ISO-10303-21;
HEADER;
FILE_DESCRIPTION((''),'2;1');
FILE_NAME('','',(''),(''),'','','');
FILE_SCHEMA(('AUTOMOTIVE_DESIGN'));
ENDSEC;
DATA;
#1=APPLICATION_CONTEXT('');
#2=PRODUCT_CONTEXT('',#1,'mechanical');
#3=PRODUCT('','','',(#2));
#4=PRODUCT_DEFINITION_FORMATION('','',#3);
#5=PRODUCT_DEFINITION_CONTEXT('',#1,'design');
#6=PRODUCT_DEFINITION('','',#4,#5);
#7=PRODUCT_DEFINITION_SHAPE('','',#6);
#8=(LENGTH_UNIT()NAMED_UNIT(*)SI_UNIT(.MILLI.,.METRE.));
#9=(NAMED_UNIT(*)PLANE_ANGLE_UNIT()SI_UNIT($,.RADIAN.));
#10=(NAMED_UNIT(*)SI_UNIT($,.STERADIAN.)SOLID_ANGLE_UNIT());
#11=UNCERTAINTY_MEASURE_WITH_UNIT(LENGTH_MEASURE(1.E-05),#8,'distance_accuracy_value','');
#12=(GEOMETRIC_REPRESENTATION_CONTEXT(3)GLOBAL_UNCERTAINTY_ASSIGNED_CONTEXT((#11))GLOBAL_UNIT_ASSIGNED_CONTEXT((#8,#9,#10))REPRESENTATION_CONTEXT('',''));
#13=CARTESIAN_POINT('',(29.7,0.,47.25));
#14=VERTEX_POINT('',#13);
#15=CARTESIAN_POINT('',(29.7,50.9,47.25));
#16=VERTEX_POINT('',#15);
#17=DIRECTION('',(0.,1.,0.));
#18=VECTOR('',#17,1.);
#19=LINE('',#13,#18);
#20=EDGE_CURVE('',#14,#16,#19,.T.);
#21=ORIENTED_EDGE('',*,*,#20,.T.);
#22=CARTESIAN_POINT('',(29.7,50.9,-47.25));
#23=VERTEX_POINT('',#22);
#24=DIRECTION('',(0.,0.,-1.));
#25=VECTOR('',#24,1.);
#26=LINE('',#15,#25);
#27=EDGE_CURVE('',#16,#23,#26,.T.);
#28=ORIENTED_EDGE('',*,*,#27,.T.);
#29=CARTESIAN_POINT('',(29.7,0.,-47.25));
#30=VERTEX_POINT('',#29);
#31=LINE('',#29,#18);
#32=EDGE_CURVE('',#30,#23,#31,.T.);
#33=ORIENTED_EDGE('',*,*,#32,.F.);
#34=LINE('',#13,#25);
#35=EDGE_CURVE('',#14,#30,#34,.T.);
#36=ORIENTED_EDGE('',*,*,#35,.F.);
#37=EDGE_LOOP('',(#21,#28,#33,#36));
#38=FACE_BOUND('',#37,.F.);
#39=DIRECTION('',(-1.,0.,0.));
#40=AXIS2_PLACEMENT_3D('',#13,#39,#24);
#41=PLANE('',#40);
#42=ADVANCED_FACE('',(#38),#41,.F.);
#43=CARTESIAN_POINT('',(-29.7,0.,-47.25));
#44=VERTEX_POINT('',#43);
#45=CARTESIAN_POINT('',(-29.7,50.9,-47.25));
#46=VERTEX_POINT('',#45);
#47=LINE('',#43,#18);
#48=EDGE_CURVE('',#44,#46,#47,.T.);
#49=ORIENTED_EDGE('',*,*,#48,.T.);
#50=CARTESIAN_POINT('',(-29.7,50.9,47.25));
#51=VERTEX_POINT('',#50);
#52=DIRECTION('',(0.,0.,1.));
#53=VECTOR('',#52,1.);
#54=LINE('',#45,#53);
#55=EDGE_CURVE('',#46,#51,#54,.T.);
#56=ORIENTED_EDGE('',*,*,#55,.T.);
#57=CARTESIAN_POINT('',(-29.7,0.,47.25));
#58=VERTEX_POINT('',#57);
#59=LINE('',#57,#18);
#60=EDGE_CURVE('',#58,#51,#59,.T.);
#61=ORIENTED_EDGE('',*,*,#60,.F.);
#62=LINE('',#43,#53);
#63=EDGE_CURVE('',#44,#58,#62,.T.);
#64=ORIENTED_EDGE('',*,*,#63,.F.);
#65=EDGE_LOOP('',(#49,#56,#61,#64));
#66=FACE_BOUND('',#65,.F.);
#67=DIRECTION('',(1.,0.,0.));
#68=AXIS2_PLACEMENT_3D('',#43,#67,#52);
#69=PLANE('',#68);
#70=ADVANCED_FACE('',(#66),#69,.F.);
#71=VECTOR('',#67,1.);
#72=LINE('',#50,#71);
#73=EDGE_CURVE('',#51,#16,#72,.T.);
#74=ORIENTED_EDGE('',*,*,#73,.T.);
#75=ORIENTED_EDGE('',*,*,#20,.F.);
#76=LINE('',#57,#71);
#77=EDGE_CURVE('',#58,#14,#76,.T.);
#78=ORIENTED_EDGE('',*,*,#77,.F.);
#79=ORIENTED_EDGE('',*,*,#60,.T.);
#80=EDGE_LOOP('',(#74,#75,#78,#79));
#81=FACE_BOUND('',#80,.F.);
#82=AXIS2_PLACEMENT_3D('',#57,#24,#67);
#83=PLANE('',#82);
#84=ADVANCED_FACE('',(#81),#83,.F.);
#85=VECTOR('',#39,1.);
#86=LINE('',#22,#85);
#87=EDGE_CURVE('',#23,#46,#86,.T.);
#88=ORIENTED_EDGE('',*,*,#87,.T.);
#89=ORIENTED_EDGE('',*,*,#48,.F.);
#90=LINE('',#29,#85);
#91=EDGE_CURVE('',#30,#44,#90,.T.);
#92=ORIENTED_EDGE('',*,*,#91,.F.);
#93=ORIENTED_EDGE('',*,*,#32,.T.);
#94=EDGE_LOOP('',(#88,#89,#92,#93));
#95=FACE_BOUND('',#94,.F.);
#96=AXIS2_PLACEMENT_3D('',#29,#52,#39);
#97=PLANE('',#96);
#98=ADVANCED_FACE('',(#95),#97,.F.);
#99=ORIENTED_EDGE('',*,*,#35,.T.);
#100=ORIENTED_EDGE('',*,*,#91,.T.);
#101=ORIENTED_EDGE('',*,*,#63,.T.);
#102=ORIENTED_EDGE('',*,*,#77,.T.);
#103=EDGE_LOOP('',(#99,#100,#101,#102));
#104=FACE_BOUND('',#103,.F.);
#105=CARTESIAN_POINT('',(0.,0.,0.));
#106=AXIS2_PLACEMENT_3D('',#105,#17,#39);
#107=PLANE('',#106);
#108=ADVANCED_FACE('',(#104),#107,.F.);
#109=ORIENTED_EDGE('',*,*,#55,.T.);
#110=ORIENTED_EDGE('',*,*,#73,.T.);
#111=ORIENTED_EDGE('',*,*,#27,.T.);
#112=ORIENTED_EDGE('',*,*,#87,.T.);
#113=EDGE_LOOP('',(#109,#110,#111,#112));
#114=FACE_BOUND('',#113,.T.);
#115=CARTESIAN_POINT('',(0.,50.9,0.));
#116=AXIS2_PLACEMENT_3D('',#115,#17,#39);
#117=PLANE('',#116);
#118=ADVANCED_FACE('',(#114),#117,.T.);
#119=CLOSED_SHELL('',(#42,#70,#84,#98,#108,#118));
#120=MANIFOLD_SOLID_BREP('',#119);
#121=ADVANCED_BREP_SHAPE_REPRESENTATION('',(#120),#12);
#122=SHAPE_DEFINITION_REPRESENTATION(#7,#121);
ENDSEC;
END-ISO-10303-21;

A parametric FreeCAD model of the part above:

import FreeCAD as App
import Part
import Sketcher

V = App.Vector


def add_polygon(sketch, points):
    """Adds a closed chain of lines whose ends are joined by coincident constraints."""
    first, n = sketch.GeometryCount, len(points)
    for a, b in zip(points, points[1:] + points[:1]):
        sketch.addGeometry(Part.LineSegment(App.Vector(*a, 0), App.Vector(*b, 0)), False)
    for i in range(n):
        sketch.addConstraint(Sketcher.Constraint("Coincident", first + i, 2, first + (i + 1) % n, 1))

doc = App.newDocument("Part")
params = doc.addObject("Spreadsheet::Sheet", "Params")
for row, (alias, value) in enumerate([
    ("sketch1_width", "59.4 mm"),
    ("sketch1_height", "94.5 mm"),
    ("pad1_length", "50.9 mm"),
], start=1):
    params.set(f"A{row}", alias)
    params.set(f"B{row}", "=" + value)
    params.setAlias(f"B{row}", alias)

body = doc.addObject("PartDesign::Body", "Body")

sketch1 = body.newObject("Sketcher::SketchObject", "Sketch")
sketch1.AttachmentSupport = (doc.getObject("XZ_Plane"), [""])
sketch1.MapMode = "FlatFace"
add_polygon(sketch1, [(30, 47), (30, -47), (-30, -47), (-30, 47)])
sketch1.addConstraint(Sketcher.Constraint("Vertical", 0))
sketch1.addConstraint(Sketcher.Constraint("Horizontal", 1))
sketch1.addConstraint(Sketcher.Constraint("Vertical", 2))
sketch1.addConstraint(Sketcher.Constraint("Horizontal", 3))
sketch1.addConstraint(Sketcher.Constraint("Symmetric", 0, 2, 2, 2, -1, 1))
sketch1.addConstraint(Sketcher.Constraint("DistanceX", 1, 2, 1, 1, 59.4))
sketch1.addConstraint(Sketcher.Constraint("DistanceY", 0, 2, 0, 1, 94.5))
sketch1.setExpression("Constraints[9]", "Params.sketch1_width")
sketch1.setExpression("Constraints[10]", "Params.sketch1_height")
pad1 = body.newObject("PartDesign::Pad", "Pad")
pad1.Profile = sketch1
pad1.setExpression("Length", "Params.pad1_length")
pad1.Reversed = True

doc.recompute()
